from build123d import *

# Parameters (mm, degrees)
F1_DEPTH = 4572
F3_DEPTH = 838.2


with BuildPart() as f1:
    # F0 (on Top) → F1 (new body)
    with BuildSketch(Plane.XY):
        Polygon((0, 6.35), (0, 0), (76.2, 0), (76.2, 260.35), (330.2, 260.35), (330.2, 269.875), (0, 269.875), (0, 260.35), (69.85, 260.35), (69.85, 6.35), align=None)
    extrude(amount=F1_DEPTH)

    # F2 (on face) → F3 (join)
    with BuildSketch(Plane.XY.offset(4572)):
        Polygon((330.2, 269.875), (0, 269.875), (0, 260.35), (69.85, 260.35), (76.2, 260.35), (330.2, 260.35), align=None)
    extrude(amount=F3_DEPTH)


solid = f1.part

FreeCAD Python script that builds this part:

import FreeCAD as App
import Part
import Sketcher

V = App.Vector
Q = App.Units.Quantity


def add_polygon(sketch, points):
    """Adds a closed chain of lines whose ends are joined by coincident constraints."""
    first, n = sketch.GeometryCount, len(points)
    for a, b in zip(points, points[1:] + points[:1]):
        sketch.addGeometry(Part.LineSegment(App.Vector(*a, 0), App.Vector(*b, 0)), False)
    for i in range(n):
        sketch.addConstraint(Sketcher.Constraint("Coincident", first + i, 2, first + (i + 1) % n, 1))

doc = App.newDocument("Part")
body = doc.addObject("PartDesign::Body", "Body")

# Sketch on XY plane
sketch1 = body.newObject("Sketcher::SketchObject", "Sketch")
sketch1.AttachmentSupport = (doc.getObject("XY_Plane"), [""])
sketch1.MapMode = "FlatFace"
add_polygon(sketch1, [(0, 6), (0, 0), (76, 0), (76, 260), (330, 260), (330, 270), (0, 270), (0, 260), (70, 260), (70, 6)])  # lines 0-9
sketch1.addConstraint(Sketcher.Constraint("Vertical", 0))
sketch1.addConstraint(Sketcher.Constraint("Horizontal", 1))
sketch1.addConstraint(Sketcher.Constraint("Vertical", 2))
sketch1.addConstraint(Sketcher.Constraint("Horizontal", 3))
sketch1.addConstraint(Sketcher.Constraint("Vertical", 4))
sketch1.addConstraint(Sketcher.Constraint("Horizontal", 5))
sketch1.addConstraint(Sketcher.Constraint("Vertical", 6))
sketch1.addConstraint(Sketcher.Constraint("Horizontal", 7))
sketch1.addConstraint(Sketcher.Constraint("Vertical", 8))
sketch1.addConstraint(Sketcher.Constraint("Horizontal", 9))
sketch1.addConstraint(Sketcher.Constraint("Coincident", 0, 2, -1, 1))
sketch1.addConstraint(Sketcher.Constraint("PointOnObject", 5, 2, -2))
sketch1.addConstraint(Sketcher.Constraint("Horizontal", 3, 2, 6, 2))
sketch1.addConstraint(Sketcher.Constraint("Equal", 3, 8))
sketch1.addConstraint(Sketcher.Constraint("DistanceX", 1, 1, 1, 2, Q("3 in")))
sketch1.addConstraint(Sketcher.Constraint("DistanceX", 3, 1, 3, 2, Q("10 in")))
sketch1.addConstraint(Sketcher.Constraint("DistanceX", 7, 1, 7, 2, Q("2.75 in")))
sketch1.addConstraint(Sketcher.Constraint("DistanceY", 0, 2, 0, 1, Q("0.25 in")))
sketch1.addConstraint(Sketcher.Constraint("DistanceY", 4, 1, 4, 2, Q("0.375 in")))
pad1 = body.newObject("PartDesign::Pad", "Pad")
pad1.Profile = sketch1
pad1.Length = Q("180 in")

# Sketch on XY plane
sketch2 = body.newObject("Sketcher::SketchObject", "Sketch001")
sketch2.AttachmentSupport = (doc.getObject("XY_Plane"), [""])
sketch2.MapMode = "FlatFace"
sketch2.AttachmentOffset = App.Placement(V(0, 0, 180 * 25.4), App.Rotation())
add_polygon(sketch2, [(330, 270), (0, 270), (0, 260), (330, 260)])  # lines 0-3
sketch2.addConstraint(Sketcher.Constraint("Horizontal", 0))
sketch2.addConstraint(Sketcher.Constraint("Vertical", 1))
sketch2.addConstraint(Sketcher.Constraint("Horizontal", 2))
sketch2.addConstraint(Sketcher.Constraint("Vertical", 3))
sketch2.addConstraint(Sketcher.Constraint("PointOnObject", 0, 2, -2))
sketch2.addConstraint(Sketcher.Constraint("DistanceX", 0, 2, 0, 1, Q("13 in")))
sketch2.addConstraint(Sketcher.Constraint("DistanceY", 1, 2, 1, 1, Q("0.375 in")))
sketch2.addConstraint(Sketcher.Constraint("DistanceY", -1, 1, 1, 2, Q("10.25 in")))
pad2 = body.newObject("PartDesign::Pad", "Pad001")
pad2.Profile = sketch2
pad2.Length = Q("33 in")

doc.recompute()
